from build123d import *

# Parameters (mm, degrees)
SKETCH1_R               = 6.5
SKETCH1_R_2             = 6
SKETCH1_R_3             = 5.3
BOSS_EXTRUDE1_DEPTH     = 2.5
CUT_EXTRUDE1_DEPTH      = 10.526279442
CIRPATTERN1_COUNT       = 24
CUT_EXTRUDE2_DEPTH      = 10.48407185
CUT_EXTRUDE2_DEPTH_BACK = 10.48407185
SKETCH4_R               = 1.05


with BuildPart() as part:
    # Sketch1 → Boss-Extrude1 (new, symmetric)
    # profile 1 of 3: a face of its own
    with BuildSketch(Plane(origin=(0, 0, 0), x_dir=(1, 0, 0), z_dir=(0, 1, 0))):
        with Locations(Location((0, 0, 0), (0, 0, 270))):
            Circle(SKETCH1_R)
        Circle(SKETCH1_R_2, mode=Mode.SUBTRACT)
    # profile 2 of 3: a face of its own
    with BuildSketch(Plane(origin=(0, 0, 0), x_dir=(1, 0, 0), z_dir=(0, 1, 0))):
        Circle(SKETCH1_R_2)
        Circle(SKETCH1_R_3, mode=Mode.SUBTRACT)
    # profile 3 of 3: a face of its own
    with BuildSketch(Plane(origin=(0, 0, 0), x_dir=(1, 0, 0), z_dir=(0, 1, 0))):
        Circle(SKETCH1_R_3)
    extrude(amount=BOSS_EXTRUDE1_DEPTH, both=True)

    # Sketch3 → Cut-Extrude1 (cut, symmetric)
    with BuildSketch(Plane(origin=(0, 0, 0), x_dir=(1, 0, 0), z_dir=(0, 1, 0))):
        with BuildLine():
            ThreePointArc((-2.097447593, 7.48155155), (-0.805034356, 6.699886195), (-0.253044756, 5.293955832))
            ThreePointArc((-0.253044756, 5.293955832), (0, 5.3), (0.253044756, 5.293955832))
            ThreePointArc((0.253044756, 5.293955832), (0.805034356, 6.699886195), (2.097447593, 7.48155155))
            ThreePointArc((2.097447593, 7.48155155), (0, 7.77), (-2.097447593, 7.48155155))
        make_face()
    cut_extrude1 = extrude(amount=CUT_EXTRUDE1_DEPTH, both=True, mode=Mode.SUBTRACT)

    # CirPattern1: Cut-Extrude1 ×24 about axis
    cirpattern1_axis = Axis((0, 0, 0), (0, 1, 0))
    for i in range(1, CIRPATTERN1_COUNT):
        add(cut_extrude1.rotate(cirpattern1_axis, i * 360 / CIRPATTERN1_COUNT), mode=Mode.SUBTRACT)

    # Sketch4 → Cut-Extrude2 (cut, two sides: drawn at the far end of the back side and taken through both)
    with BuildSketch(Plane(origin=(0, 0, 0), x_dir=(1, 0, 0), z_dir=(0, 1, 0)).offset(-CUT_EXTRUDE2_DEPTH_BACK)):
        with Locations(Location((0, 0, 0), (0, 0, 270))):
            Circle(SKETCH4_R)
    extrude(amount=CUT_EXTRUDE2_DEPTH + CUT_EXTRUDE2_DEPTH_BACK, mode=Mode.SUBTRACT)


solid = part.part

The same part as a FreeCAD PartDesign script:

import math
import FreeCAD as App
import Part
import Sketcher

V = App.Vector

doc = App.newDocument("Part")
body = doc.addObject("PartDesign::Body", "Body")

sketch1 = doc.addObject("Sketcher::SketchObject", "Sketch")
body.addObject(sketch1)
sketch1.AttachmentSupport = (doc.XZ_Plane, [""])
sketch1.MapMode = "FlatFace"
sketch1.addGeometry(Part.Circle(V(0, 0, 0), V(0, 0, 1), 6.5), False)
sketch1.addConstraint(Sketcher.Constraint("Coincident", 0, 3, -1, 1))
sketch1.addConstraint(Sketcher.Constraint("Diameter", 0, 13.0))
pad1 = doc.addObject("PartDesign::Pad", "Pad")
body.addObject(pad1)
pad1.Profile = sketch1
pad1.Length = 5
pad1.Midplane = True

sketch2 = doc.addObject("Sketcher::SketchObject", "Sketch001")
body.addObject(sketch2)
sketch2.AttachmentSupport = (doc.XZ_Plane, [""])
sketch2.MapMode = "FlatFace"
sketch2.addGeometry(Part.ArcOfCircle(Part.Circle(V(-2.605964, -5.181489, 0), V(0, 0, 1), 2.355605), math.radians(-77.533141), math.radians(-2.736587)), False)
sketch2.addGeometry(Part.ArcOfCircle(Part.Circle(V(0, 0, 0), V(0, 0, 1), 5.3), math.radians(-92.736587), math.radians(-87.263413)), False)
sketch2.addGeometry(Part.ArcOfCircle(Part.Circle(V(2.605964, -5.181489, 0), V(0, 0, 1), 2.355605), math.radians(-177.263413), math.radians(-102.466859)), False)
sketch2.addGeometry(Part.ArcOfCircle(Part.Circle(V(0, 0, 0), V(0, 0, 1), 7.77), math.radians(-105.660802), math.radians(-74.339198)), False)
sketch2.addConstraint(Sketcher.Constraint("Coincident", 0, 2, 1, 1))
sketch2.addConstraint(Sketcher.Constraint("Coincident", 1, 2, 2, 1))
sketch2.addConstraint(Sketcher.Constraint("Coincident", 2, 2, 3, 2))
sketch2.addConstraint(Sketcher.Constraint("Coincident", 3, 1, 0, 1))
sketch2.addConstraint(Sketcher.Constraint("Coincident", 1, 3, -1, 1))
sketch2.addConstraint(Sketcher.Constraint("Coincident", 3, 3, -1, 1))
sketch2.addConstraint(Sketcher.Constraint("Equal", 0, 2))
sketch2.addConstraint(Sketcher.Constraint("Symmetric", 0, 3, 2, 3, -2))
sketch2.addConstraint(Sketcher.Constraint("Radius", 1, 5.3))
sketch2.addConstraint(Sketcher.Constraint("Radius", 3, 7.77))
sketch2.addConstraint(Sketcher.Constraint("Radius", 0, 2.355605))
sketch2.addConstraint(Sketcher.Constraint("DistanceY", 0, 3, -1, 1, 5.181489))
sketch2.addConstraint(Sketcher.Constraint("DistanceY", 2, 2, -1, 1, 7.481552))
pocket1 = doc.addObject("PartDesign::Pocket", "Pocket")
body.addObject(pocket1)
pocket1.Profile = sketch2
pocket1.Length = 21.052559
pocket1.Midplane = True
doc.recompute()

polarpattern = doc.addObject("PartDesign::PolarPattern", "PolarPattern")
body.addObject(polarpattern)
polarpattern.Originals = [pocket1]
polarpattern.Axis = (doc.Y_Axis, [""])
polarpattern.Angle = 360
polarpattern.Occurrences = 24
body.Tip = polarpattern

sketch3 = doc.addObject("Sketcher::SketchObject", "Sketch002")
body.addObject(sketch3)
sketch3.AttachmentSupport = (doc.XZ_Plane, [""])
sketch3.MapMode = "FlatFace"
sketch3.addGeometry(Part.Circle(V(0, 0, 0), V(0, 0, 1), 1.05), False)
sketch3.addConstraint(Sketcher.Constraint("Coincident", 0, 3, -1, 1))
sketch3.addConstraint(Sketcher.Constraint("Diameter", 0, 2.1))
pocket2 = doc.addObject("PartDesign::Pocket", "Pocket001")
body.addObject(pocket2)
pocket2.Profile = sketch3
pocket2.Type = "ThroughAll"
pocket2.Midplane = True

doc.recompute()
